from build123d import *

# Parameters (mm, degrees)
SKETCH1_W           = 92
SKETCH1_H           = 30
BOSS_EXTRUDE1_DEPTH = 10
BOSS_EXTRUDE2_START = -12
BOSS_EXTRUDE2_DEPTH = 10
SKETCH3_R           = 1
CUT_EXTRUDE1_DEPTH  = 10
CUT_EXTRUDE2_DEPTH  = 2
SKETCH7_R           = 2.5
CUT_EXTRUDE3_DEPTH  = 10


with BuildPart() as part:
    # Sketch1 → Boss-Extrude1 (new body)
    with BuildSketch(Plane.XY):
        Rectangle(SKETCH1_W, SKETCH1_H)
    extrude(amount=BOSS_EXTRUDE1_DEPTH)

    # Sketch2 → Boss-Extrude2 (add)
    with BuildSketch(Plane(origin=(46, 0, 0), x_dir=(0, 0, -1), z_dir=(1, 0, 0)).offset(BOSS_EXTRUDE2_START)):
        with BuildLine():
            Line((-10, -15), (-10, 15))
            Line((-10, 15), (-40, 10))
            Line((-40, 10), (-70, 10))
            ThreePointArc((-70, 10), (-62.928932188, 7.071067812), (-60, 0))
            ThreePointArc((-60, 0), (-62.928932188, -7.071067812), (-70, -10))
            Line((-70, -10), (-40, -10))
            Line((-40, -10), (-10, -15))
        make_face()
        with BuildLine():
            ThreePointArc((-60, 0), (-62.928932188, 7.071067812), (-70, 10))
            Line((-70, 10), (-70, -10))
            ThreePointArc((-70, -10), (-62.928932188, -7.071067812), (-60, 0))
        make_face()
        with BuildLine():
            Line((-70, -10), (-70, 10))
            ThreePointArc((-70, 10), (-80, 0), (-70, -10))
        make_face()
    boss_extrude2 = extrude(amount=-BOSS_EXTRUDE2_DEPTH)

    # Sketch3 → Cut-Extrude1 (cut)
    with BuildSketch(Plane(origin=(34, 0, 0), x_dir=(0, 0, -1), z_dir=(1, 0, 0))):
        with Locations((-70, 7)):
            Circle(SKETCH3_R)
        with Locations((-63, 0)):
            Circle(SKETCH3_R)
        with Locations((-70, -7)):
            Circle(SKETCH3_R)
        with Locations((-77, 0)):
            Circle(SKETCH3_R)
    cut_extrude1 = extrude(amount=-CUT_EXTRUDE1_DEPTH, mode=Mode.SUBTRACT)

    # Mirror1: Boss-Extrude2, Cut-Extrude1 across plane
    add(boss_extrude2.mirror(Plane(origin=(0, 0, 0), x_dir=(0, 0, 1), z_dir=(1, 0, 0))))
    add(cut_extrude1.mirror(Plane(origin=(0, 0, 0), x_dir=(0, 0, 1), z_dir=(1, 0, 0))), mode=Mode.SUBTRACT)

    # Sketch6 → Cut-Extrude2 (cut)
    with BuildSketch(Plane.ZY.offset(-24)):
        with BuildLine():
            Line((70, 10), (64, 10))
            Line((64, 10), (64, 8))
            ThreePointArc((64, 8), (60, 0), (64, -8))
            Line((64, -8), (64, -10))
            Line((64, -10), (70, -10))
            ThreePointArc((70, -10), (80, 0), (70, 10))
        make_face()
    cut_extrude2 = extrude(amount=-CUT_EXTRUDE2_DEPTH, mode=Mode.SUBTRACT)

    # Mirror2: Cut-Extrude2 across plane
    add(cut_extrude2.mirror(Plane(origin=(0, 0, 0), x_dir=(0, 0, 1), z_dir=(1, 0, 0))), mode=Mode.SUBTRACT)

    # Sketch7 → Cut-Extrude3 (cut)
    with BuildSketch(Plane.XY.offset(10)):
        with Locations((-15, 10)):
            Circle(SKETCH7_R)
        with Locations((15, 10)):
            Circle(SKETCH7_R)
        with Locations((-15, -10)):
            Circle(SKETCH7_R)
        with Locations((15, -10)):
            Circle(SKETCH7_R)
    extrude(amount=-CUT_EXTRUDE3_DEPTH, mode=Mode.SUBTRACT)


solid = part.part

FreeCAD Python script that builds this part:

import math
import FreeCAD as App
import Part
import Sketcher
from FreeCAD import Vector


def add_polygon(sketch, points):
    """Adds a closed chain of lines whose ends are joined by coincident constraints."""
    first, n = sketch.GeometryCount, len(points)
    for a, b in zip(points, points[1:] + points[:1]):
        sketch.addGeometry(Part.LineSegment(App.Vector(*a, 0), App.Vector(*b, 0)), False)
    for i in range(n):
        sketch.addConstraint(Sketcher.Constraint("Coincident", first + i, 2, first + (i + 1) % n, 1))

doc = App.newDocument("Part")
body = doc.addObject("PartDesign::Body", "Body")

# Sketch on XY plane
sketch1 = body.newObject("Sketcher::SketchObject", "Sketch")
sketch1.AttachmentSupport = (doc.getObject("XY_Plane"), [""])
sketch1.MapMode = "FlatFace"
add_polygon(sketch1, [(-46, 15), (-46, -15), (46, -15), (46, 15)])  # lines 0-3
sketch1.addConstraint([
    Sketcher.Constraint("Vertical", 0),
    Sketcher.Constraint("Horizontal", 1),
    Sketcher.Constraint("Vertical", 2),
    Sketcher.Constraint("Horizontal", 3),
    Sketcher.Constraint("Symmetric", 0, 2, 2, 2, -1, 1),
    Sketcher.Constraint("DistanceX", 1, 1, 1, 2, 92.0),
    Sketcher.Constraint("DistanceY", 0, 2, 0, 1, 30.0),
])
pad1 = body.newObject("PartDesign::Pad", "Pad")
pad1.Profile = sketch1
pad1.Length = 10

# Sketch on YZ plane
sketch2 = body.newObject("Sketcher::SketchObject", "Sketch001")
sketch2.AttachmentSupport = (doc.getObject("YZ_Plane"), [""])
sketch2.MapMode = "FlatFace"
sketch2.AttachmentOffset = App.Placement(Vector(0, 0, 34), App.Rotation())
sketch2.addGeometry([
    Part.LineSegment(Vector(-10, 70, 0), Vector(-10, 40, 0)),  # 0
    Part.LineSegment(Vector(-10, 40, 0), Vector(-15, 10, 0)),  # 1
    Part.LineSegment(Vector(-15, 10, 0), Vector(15, 10, 0)),  # 2
    Part.LineSegment(Vector(15, 10, 0), Vector(10, 40, 0)),  # 3
    Part.LineSegment(Vector(10, 40, 0), Vector(10, 70, 0)),  # 4
    Part.ArcOfCircle(Part.Circle(Vector(0, 70, 0), Vector(0, 0, 1), 10), math.radians(0), math.radians(180)),  # 5
], False)
sketch2.addConstraint([
    Sketcher.Constraint("Coincident", 0, 2, 1, 1),
    Sketcher.Constraint("Coincident", 1, 2, 2, 1),
    Sketcher.Constraint("Coincident", 2, 2, 3, 1),
    Sketcher.Constraint("Coincident", 3, 2, 4, 1),
    Sketcher.Constraint("Tangent", 4, 2, 5, 1),
    Sketcher.Constraint("Tangent", 5, 2, 0, 1),
    Sketcher.Constraint("Vertical", 0),
    Sketcher.Constraint("Horizontal", 2),
    Sketcher.Constraint("Vertical", 4),
    Sketcher.Constraint("Symmetric", 0, 2, 3, 2, -2),
    Sketcher.Constraint("Equal", 2, 0),
    Sketcher.Constraint("Equal", 1, 3),
    Sketcher.Constraint("Radius", 5, 10.0),
    Sketcher.Constraint("DistanceX", 2, 1, 2, 2, 30.0),
    Sketcher.Constraint("DistanceY", -1, 1, 5, 3, 70.0),
    Sketcher.Constraint("DistanceY", -1, 1, 1, 2, 10.0),
])
pad2 = body.newObject("PartDesign::Pad", "Pad001")
pad2.Profile = sketch2
pad2.Length = 10
pad2.Reversed = True

# Sketch on YZ plane
sketch3 = body.newObject("Sketcher::SketchObject", "Sketch002")
sketch3.AttachmentSupport = (doc.getObject("YZ_Plane"), [""])
sketch3.MapMode = "FlatFace"
sketch3.AttachmentOffset = App.Placement(Vector(0, 0, 34), App.Rotation())
sketch3.addGeometry([
    Part.Circle(Vector(7, 70, 0), Vector(0, 0, 1), 1),
    Part.Circle(Vector(0, 63, 0), Vector(0, 0, 1), 1),
    Part.Circle(Vector(-7, 70, 0), Vector(0, 0, 1), 1),
    Part.Circle(Vector(0, 77, 0), Vector(0, 0, 1), 1),
], False)
sketch3.addConstraint([
    Sketcher.Constraint("Equal", 0, 1),
    Sketcher.Constraint("Equal", 1, 2),
    Sketcher.Constraint("Equal", 2, 3),
    Sketcher.Constraint("Symmetric", 0, 3, 2, 3, -2),
    Sketcher.Constraint("PointOnObject", 1, 3, -2),
    Sketcher.Constraint("PointOnObject", 3, 3, -2),
    Sketcher.Constraint("Diameter", 0, 2.0),
    Sketcher.Constraint("DistanceX", -1, 1, 0, 3, 7.0),
    Sketcher.Constraint("DistanceY", -1, 1, 0, 3, 70.0),
    Sketcher.Constraint("DistanceY", -1, 1, 1, 3, 63.0),
    Sketcher.Constraint("DistanceY", -1, 1, 3, 3, 77.0),
])
pocket1 = body.newObject("PartDesign::Pocket", "Pocket")
pocket1.Profile = sketch3
pocket1.Length = 10
doc.recompute()

mirrored = body.newObject("PartDesign::Mirrored", "Mirrored")
mirrored.Originals = [pad2, pocket1]
mirrored.MirrorPlane = (doc.getObject("YZ_Plane"), [""])
body.Tip = mirrored

# Sketch on YZ plane
sketch4 = body.newObject("Sketcher::SketchObject", "Sketch003")
sketch4.AttachmentSupport = (doc.getObject("YZ_Plane"), [""])
sketch4.MapMode = "FlatFace"
sketch4.AttachmentOffset = App.Placement(Vector(0, 0, 24), App.Rotation())
sketch4.addGeometry([
    Part.LineSegment(Vector(10, 70, 0), Vector(10, 64, 0)),  # 0
    Part.LineSegment(Vector(10, 64, 0), Vector(8, 64, 0)),  # 1
    Part.ArcOfCircle(Part.Circle(Vector(0, 70, 0), Vector(0, 0, 1), 10), math.radians(-143), math.radians(-37)),  # 2
    Part.LineSegment(Vector(-8, 64, 0), Vector(-10, 64, 0)),  # 3
    Part.LineSegment(Vector(-10, 64, 0), Vector(-10, 70, 0)),  # 4
    Part.ArcOfCircle(Part.Circle(Vector(0, 70, 0), Vector(0, 0, 1), 10), math.radians(0), math.radians(180)),  # 5
], False)
sketch4.addConstraint([
    Sketcher.Constraint("Coincident", 0, 2, 1, 1),
    Sketcher.Constraint("Coincident", 1, 2, 2, 2),
    Sketcher.Constraint("Coincident", 2, 1, 3, 1),
    Sketcher.Constraint("Coincident", 3, 2, 4, 1),
    Sketcher.Constraint("Tangent", 4, 2, 5, 2),
    Sketcher.Constraint("Tangent", 5, 1, 0, 1),
    Sketcher.Constraint("Vertical", 0),
    Sketcher.Constraint("Horizontal", 1),
    Sketcher.Constraint("Horizontal", 3),
    Sketcher.Constraint("Vertical", 4),
    Sketcher.Constraint("Coincident", 5, 3, 2, 3),
    Sketcher.Constraint("Equal", 2, 5),
    Sketcher.Constraint("Symmetric", 1, 2, 2, 1, -2),
    Sketcher.Constraint("Radius", 2, 10.0),
    Sketcher.Constraint("DistanceX", 1, 2, 1, 1, 2.0),
    Sketcher.Constraint("DistanceY", -1, 1, 2, 3, 70.0),
])
pocket2 = body.newObject("PartDesign::Pocket", "Pocket001")
pocket2.Profile = sketch4
pocket2.Length = 2
pocket2.Reversed = True
doc.recompute()

mirrored2 = body.newObject("PartDesign::Mirrored", "Mirrored001")
mirrored2.Originals = [pocket2]
mirrored2.MirrorPlane = (doc.getObject("YZ_Plane"), [""])
body.Tip = mirrored2

# Sketch on XY plane
sketch5 = body.newObject("Sketcher::SketchObject", "Sketch004")
sketch5.AttachmentSupport = (doc.getObject("XY_Plane"), [""])
sketch5.MapMode = "FlatFace"
sketch5.AttachmentOffset = App.Placement(Vector(0, 0, 10), App.Rotation())
sketch5.addGeometry([
    Part.Circle(Vector(-15, 10, 0), Vector(0, 0, 1), 2.5),
    Part.Circle(Vector(15, 10, 0), Vector(0, 0, 1), 2.5),
    Part.Circle(Vector(-15, -10, 0), Vector(0, 0, 1), 2.5),
    Part.Circle(Vector(15, -10, 0), Vector(0, 0, 1), 2.5),
], False)
sketch5.addConstraint([
    Sketcher.Constraint("Equal", 0, 1),
    Sketcher.Constraint("Equal", 1, 2),
    Sketcher.Constraint("Equal", 2, 3),
    Sketcher.Constraint("Symmetric", 1, 3, 2, 3, -1, 1),
    Sketcher.Constraint("Symmetric", 0, 3, 3, 3, -1, 1),
    Sketcher.Constraint("Symmetric", 0, 3, 1, 3, -2),
    Sketcher.Constraint("Diameter", 0, 5.0),
    Sketcher.Constraint("DistanceX", 0, 3, -1, 1, 15.0),
    Sketcher.Constraint("DistanceY", -1, 1, 0, 3, 10.0),
])
pocket3 = body.newObject("PartDesign::Pocket", "Pocket002")
pocket3.Profile = sketch5
pocket3.Length = 10

doc.recompute()
